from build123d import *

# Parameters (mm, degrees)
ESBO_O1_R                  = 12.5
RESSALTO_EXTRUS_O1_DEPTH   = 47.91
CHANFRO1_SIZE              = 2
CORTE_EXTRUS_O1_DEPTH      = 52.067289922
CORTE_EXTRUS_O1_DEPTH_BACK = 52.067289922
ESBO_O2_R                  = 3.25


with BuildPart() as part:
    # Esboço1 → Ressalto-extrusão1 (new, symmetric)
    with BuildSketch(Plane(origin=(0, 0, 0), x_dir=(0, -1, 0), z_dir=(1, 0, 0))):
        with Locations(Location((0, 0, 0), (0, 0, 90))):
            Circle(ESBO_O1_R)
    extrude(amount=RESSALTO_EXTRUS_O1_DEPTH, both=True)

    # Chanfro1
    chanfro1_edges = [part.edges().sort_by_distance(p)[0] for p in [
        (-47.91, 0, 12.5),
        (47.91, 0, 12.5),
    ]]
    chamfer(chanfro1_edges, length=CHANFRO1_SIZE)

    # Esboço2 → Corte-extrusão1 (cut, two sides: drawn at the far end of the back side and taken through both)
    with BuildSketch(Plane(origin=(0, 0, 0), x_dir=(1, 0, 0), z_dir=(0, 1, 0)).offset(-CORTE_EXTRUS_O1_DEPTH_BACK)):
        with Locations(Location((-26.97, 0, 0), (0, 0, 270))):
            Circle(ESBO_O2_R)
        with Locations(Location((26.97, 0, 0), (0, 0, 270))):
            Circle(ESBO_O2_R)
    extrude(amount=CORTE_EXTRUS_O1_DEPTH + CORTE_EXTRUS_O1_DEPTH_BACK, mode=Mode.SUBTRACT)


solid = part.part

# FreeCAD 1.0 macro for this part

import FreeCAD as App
import Part
import Sketcher


def edges_at(feature, points):
    """Names of the edges that pass closest to the given points."""
    edges = feature.Shape.Edges
    near = lambda p: min(range(len(edges)), key=lambda i: edges[i].distToShape(Part.Vertex(*p))[0])
    return sorted({f"Edge{near(p) + 1}" for p in points})

doc = App.newDocument("Part")
body = doc.addObject("PartDesign::Body", "Body")

# Sketch on YZ plane
sketch1 = doc.addObject("Sketcher::SketchObject", "Sketch")
body.addObject(sketch1)
sketch1.AttachmentSupport = (doc.YZ_Plane, [""])
sketch1.MapMode = "FlatFace"
sketch1.addGeometry(Part.Circle(App.Vector(0, 0, 0), App.Vector(0, 0, 1), 12.5), False)
sketch1.addConstraint([
    Sketcher.Constraint("Coincident", 0, 3, -1, 1),
    Sketcher.Constraint("Diameter", 0, 25.0),
])
pad1 = doc.addObject("PartDesign::Pad", "Pad")
body.addObject(pad1)
pad1.Profile = sketch1
pad1.Length = 95.82
pad1.Midplane = True
doc.recompute()

chamfer = doc.addObject("PartDesign::Chamfer", "Chamfer")
body.addObject(chamfer)
chamfer.Base = (pad1, edges_at(pad1, [(-47.91, 0, 12.5), (47.91, 0, 12.5)]))
chamfer.Size = 2

# Sketch on XZ plane
sketch2 = doc.addObject("Sketcher::SketchObject", "Sketch001")
body.addObject(sketch2)
sketch2.AttachmentSupport = (doc.XZ_Plane, [""])
sketch2.MapMode = "FlatFace"
sketch2.addGeometry([
    Part.Circle(App.Vector(-26.97, 0, 0), App.Vector(0, 0, 1), 3.25),
    Part.Circle(App.Vector(26.97, 0, 0), App.Vector(0, 0, 1), 3.25),
], False)
sketch2.addConstraint([
    Sketcher.Constraint("Equal", 0, 1),
    Sketcher.Constraint("Symmetric", 0, 3, 1, 3, -1, 1),
    Sketcher.Constraint("PointOnObject", 0, 3, -1),
    Sketcher.Constraint("Diameter", 0, 6.5),
    Sketcher.Constraint("DistanceX", 0, 3, -1, 1, 26.97),
])
pocket1 = doc.addObject("PartDesign::Pocket", "Pocket")
body.addObject(pocket1)
pocket1.Profile = sketch2
pocket1.Type = "ThroughAll"
pocket1.Midplane = True

doc.recompute()
